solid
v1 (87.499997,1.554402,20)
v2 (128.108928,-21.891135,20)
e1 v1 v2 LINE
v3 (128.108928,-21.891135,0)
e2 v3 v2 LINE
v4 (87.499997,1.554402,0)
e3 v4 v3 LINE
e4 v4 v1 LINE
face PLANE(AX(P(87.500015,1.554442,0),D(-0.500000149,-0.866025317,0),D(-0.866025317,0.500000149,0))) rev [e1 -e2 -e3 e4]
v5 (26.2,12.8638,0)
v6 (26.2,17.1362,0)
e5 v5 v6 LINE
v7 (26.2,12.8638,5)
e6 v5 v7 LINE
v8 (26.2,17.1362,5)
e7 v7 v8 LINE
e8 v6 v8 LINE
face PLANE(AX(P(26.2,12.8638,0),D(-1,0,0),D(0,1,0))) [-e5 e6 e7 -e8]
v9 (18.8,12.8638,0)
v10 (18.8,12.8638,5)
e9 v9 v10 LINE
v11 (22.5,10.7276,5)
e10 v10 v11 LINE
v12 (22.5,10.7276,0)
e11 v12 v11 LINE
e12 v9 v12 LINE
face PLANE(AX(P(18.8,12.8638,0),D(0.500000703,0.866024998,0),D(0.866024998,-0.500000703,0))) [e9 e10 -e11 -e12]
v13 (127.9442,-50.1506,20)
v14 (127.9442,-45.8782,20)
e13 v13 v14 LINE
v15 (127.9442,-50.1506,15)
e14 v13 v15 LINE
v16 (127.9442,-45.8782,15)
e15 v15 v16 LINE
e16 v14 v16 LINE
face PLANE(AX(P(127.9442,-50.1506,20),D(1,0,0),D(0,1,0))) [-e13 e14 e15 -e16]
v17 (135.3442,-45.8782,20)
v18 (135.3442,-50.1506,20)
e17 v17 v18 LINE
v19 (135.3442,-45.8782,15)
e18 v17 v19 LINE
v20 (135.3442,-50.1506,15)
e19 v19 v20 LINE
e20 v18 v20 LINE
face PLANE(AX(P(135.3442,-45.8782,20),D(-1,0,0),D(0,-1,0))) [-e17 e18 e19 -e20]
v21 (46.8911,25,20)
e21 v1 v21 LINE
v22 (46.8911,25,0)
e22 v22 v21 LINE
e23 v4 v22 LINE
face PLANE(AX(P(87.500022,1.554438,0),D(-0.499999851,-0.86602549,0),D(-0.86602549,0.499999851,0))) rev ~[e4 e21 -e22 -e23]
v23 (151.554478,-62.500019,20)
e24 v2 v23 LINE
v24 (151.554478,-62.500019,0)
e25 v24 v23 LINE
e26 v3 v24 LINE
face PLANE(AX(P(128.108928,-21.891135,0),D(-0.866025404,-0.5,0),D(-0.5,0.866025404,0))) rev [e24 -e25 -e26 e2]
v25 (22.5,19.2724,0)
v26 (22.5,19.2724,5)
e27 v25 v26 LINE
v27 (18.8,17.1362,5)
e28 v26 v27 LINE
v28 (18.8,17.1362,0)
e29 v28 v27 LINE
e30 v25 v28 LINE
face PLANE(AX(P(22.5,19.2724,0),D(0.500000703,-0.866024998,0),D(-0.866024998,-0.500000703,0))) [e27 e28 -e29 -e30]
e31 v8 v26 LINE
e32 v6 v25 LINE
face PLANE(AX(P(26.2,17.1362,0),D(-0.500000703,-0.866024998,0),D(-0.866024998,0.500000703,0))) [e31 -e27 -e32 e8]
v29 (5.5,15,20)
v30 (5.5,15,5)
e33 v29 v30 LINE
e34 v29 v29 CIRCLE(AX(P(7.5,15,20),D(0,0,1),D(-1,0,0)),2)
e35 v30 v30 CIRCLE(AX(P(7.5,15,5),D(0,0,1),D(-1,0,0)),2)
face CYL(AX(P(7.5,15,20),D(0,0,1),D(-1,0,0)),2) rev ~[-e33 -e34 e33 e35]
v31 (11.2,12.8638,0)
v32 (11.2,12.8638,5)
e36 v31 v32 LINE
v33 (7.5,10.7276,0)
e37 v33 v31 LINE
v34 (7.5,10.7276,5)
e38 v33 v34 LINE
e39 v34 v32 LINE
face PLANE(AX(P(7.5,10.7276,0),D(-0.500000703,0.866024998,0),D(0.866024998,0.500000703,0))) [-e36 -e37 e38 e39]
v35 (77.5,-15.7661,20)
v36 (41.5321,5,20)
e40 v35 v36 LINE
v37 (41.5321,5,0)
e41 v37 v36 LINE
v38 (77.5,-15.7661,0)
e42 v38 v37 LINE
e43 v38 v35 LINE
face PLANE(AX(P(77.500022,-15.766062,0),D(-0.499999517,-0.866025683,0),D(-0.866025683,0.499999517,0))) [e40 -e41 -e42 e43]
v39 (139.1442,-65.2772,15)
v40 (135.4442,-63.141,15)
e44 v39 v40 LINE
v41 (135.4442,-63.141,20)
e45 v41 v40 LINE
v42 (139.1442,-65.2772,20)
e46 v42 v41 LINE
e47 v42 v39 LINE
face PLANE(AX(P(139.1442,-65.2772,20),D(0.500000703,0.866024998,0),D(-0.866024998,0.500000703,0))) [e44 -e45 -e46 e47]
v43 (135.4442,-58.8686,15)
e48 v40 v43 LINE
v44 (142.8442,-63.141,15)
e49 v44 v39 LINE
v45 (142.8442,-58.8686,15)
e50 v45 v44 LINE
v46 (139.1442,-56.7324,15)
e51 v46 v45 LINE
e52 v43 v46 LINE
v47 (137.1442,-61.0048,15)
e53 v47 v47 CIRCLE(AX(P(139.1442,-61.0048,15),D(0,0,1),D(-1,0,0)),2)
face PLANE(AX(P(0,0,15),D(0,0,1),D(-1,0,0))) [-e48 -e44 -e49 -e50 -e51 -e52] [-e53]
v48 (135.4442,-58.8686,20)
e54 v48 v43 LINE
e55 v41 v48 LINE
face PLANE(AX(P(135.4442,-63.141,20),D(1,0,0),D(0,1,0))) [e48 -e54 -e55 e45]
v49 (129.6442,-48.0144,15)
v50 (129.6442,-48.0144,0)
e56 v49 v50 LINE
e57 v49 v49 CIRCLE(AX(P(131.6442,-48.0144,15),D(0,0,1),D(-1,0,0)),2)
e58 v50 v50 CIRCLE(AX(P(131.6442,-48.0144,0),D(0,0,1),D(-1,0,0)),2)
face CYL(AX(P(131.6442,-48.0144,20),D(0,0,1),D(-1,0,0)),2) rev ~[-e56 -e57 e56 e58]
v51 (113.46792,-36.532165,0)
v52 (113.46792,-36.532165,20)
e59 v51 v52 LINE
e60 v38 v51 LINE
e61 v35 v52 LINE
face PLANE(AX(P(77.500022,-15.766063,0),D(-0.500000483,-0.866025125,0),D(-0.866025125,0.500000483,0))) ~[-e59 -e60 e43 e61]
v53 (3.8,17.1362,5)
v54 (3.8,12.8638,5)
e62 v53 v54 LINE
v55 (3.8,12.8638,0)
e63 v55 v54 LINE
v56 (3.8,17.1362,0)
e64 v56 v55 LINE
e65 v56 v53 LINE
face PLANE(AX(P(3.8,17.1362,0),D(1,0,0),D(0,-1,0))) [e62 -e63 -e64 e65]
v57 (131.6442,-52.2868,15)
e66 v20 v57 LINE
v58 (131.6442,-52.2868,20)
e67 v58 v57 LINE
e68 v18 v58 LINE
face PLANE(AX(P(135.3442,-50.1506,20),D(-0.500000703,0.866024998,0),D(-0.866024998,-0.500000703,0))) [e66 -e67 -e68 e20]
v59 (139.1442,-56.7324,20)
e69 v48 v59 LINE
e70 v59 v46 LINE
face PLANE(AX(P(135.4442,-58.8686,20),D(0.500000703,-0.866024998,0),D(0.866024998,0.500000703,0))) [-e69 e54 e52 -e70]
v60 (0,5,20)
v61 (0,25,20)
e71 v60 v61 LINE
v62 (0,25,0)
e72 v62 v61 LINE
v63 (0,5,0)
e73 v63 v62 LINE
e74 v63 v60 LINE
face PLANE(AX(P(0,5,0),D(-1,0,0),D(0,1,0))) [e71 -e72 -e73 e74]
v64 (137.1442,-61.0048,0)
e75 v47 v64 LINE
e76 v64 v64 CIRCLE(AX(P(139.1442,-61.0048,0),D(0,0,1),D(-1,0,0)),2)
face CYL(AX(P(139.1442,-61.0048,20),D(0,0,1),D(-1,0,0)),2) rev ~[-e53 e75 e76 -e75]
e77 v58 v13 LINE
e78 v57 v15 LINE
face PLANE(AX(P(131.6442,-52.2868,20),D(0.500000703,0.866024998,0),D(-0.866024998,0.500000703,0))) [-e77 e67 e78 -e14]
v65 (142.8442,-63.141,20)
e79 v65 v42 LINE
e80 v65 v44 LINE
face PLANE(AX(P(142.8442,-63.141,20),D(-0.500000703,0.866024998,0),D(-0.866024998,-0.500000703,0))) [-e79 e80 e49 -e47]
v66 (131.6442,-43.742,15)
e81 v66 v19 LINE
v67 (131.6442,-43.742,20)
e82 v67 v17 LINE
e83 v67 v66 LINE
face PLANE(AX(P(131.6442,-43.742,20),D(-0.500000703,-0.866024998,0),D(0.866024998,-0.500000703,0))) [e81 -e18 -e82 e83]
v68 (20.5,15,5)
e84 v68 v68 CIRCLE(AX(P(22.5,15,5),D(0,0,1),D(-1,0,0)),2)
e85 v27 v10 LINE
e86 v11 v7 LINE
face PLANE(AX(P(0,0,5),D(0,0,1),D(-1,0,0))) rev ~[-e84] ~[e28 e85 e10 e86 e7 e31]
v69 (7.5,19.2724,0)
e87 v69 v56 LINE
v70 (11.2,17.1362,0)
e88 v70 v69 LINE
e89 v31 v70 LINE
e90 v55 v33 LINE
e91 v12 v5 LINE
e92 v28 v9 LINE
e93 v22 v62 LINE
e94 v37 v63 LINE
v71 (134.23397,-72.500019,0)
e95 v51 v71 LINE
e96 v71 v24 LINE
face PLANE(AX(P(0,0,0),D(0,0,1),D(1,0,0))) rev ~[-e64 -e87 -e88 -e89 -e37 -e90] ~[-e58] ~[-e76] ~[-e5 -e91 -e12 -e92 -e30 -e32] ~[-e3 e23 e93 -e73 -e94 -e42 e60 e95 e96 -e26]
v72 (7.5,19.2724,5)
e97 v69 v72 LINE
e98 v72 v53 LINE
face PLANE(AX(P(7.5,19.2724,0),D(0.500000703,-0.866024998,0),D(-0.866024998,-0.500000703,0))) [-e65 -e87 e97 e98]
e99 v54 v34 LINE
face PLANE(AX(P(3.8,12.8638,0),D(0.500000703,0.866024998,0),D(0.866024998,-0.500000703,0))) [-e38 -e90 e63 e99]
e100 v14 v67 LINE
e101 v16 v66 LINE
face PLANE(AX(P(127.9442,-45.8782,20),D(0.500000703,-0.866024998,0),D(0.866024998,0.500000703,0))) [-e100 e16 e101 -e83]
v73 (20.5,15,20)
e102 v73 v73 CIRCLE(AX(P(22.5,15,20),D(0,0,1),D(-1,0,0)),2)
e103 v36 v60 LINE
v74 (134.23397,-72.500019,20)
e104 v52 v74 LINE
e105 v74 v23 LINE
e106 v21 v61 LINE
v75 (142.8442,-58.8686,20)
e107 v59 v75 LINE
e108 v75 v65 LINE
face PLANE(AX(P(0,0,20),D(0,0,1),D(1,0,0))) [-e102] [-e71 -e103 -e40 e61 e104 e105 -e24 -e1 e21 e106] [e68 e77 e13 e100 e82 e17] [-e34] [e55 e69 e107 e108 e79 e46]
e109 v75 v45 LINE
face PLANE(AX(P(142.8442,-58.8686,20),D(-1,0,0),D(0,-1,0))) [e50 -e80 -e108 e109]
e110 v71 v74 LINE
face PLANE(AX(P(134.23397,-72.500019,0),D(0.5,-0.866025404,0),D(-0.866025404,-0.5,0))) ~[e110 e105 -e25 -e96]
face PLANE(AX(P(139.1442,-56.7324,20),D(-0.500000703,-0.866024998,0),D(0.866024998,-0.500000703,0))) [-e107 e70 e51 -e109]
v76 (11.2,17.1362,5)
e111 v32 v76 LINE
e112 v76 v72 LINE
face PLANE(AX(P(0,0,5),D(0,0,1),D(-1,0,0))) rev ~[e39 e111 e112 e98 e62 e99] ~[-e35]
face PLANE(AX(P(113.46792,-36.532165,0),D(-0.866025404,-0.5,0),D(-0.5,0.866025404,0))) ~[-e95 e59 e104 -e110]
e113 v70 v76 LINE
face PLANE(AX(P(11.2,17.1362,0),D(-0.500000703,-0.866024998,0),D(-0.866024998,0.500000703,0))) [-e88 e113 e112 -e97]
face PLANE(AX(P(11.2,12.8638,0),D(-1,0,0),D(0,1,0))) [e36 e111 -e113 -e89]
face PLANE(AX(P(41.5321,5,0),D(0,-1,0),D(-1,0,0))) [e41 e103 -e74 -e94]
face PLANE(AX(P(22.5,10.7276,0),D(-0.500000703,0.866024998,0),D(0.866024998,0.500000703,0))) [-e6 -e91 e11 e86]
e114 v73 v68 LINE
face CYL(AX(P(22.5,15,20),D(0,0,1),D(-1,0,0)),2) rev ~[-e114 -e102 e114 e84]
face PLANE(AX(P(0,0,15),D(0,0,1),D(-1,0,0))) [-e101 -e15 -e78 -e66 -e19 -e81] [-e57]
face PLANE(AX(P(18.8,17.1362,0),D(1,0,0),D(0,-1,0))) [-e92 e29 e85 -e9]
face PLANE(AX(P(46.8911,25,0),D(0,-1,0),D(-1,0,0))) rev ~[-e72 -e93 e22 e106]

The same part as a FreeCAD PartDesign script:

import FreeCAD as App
import Part
import Sketcher
Q = App.Units.Quantity

doc = App.newDocument("Part")
params = doc.addObject("Spreadsheet::Sheet", "Params")
for row, (alias, value) in enumerate([
    ("sketch1_height", "20 mm"),
    ("sketch1_length", "20 mm"),
    ("pad1_length", "20 mm"),
    ("sketch2_diameter", "4 mm"),
    ("sketch3_diameter", "4 mm"),
    ("pocket2_length", "5 mm"),
    ("sketch4_diameter", "4 mm"),
    ("pocket3_length", "5 mm"),
], start=1):
    params.set(f"A{row}", alias)
    params.set(f"B{row}", "=" + value)
    params.setAlias(f"B{row}", alias)

body = doc.addObject("PartDesign::Body", "Body")

# Sketch on XY plane
sketch1 = body.newObject("Sketcher::SketchObject", "Sketch")
sketch1.AttachmentSupport = (doc.getObject("XY_Plane"), [""])
sketch1.MapMode = "FlatFace"
sketch1.addGeometry(Part.LineSegment(App.Vector(78, -16, 0), App.Vector(88, 2, 0)), False)
sketch1.addGeometry(Part.LineSegment(App.Vector(88, 2, 0), App.Vector(47, 25, 0)), False)
sketch1.addGeometry(Part.LineSegment(App.Vector(47, 25, 0), App.Vector(0, 25, 0)), False)
sketch1.addGeometry(Part.LineSegment(App.Vector(0, 25, 0), App.Vector(0, 5, 0)), False)
sketch1.addGeometry(Part.LineSegment(App.Vector(0, 5, 0), App.Vector(42, 5, 0)), False)
sketch1.addGeometry(Part.LineSegment(App.Vector(42, 5, 0), App.Vector(78, -16, 0)), False)
sketch1.addConstraint(Sketcher.Constraint("Coincident", 0, 2, 1, 1))
sketch1.addConstraint(Sketcher.Constraint("Coincident", 1, 2, 2, 1))
sketch1.addConstraint(Sketcher.Constraint("Coincident", 2, 2, 3, 1))
sketch1.addConstraint(Sketcher.Constraint("Coincident", 3, 2, 4, 1))
sketch1.addConstraint(Sketcher.Constraint("Coincident", 4, 2, 5, 1))
sketch1.addConstraint(Sketcher.Constraint("Coincident", 5, 2, 0, 1))
sketch1.addConstraint(Sketcher.Constraint("Horizontal", 2))
sketch1.addConstraint(Sketcher.Constraint("Vertical", 3))
sketch1.addConstraint(Sketcher.Constraint("Horizontal", 4))
sketch1.addConstraint(Sketcher.Constraint("PointOnObject", 2, 2, -2))
sketch1.addConstraint(Sketcher.Constraint("Perpendicular", 0, 1))
sketch1.addConstraint(Sketcher.Constraint("Parallel", 1, 5))
sketch1.addConstraint(Sketcher.Constraint("DistanceY", 3, 2, 3, 1, Q("20 mm")))
sketch1.addConstraint(Sketcher.Constraint("Angle", 0, Q("60 deg")))
sketch1.addConstraint(Sketcher.Constraint("Distance", 0, Q("20 mm")))
sketch1.addConstraint(Sketcher.Constraint("DistanceY", -1, 1, 1, 2, Q("25 mm")))
sketch1.addConstraint(Sketcher.Constraint("DistanceX", -1, 1, 0, 2, Q("87.5 mm")))
sketch1.addConstraint(Sketcher.Constraint("DistanceX", 2, 2, 2, 1, Q("46.891 mm")))
sketch1.setExpression("Constraints[12]", "Params.sketch1_height")
sketch1.setExpression("Constraints[14]", "Params.sketch1_length")
pad1 = body.newObject("PartDesign::Pad", "Pad")
pad1.Profile = sketch1
pad1.setExpression("Length", "Params.pad1_length")
doc.recompute()

datumplane = body.newObject("PartDesign::Plane", "DatumPlane")
datumplane.Placement = App.Placement(App.Vector(64.951922, -37.500009, 0), App.Rotation(App.Vector(0.5, 0.866025404, 0), App.Vector(0, 0, -1), App.Vector(-0.866025404, 0.5, 0), "ZXY"))
mirrored = body.newObject("PartDesign::Mirrored", "Mirrored")
mirrored.TransformMode = "Transform body"
mirrored.MirrorPlane = (datumplane, [""])
body.Tip = mirrored

# Sketch on XY plane
sketch2 = body.newObject("Sketcher::SketchObject", "Sketch001")
sketch2.AttachmentSupport = (doc.getObject("XY_Plane"), [""])
sketch2.MapMode = "FlatFace"
sketch2.AttachmentOffset = App.Placement(App.Vector(0, 0, 20), App.Rotation())
sketch2.addGeometry(Part.Circle(App.Vector(7.5, 15, 0), App.Vector(0, 0, 1), 2), False)
sketch2.addGeometry(Part.Circle(App.Vector(22.5, 15, 0), App.Vector(0, 0, 1), 2), False)
sketch2.addGeometry(Part.Circle(App.Vector(139.1, -61, 0), App.Vector(0, 0, 1), 2), False)
sketch2.addGeometry(Part.Circle(App.Vector(131.6, -48, 0), App.Vector(0, 0, 1), 2), False)
sketch2.addConstraint(Sketcher.Constraint("Equal", 0, 1))
sketch2.addConstraint(Sketcher.Constraint("Equal", 1, 2))
sketch2.addConstraint(Sketcher.Constraint("Equal", 2, 3))
sketch2.addConstraint(Sketcher.Constraint("Horizontal", 0, 3, 1, 3))
sketch2.addConstraint(Sketcher.Constraint("Diameter", 0, Q("4 mm")))
sketch2.addConstraint(Sketcher.Constraint("DistanceY", -1, 1, 0, 3, Q("15 mm")))
sketch2.addConstraint(Sketcher.Constraint("DistanceX", 0, 3, 1, 3, Q("15 mm")))
sketch2.addConstraint(Sketcher.Constraint("DistanceX", -1, 1, 0, 3, Q("7.5 mm")))
sketch2.addConstraint(Sketcher.Constraint("DistanceX", 3, 3, 2, 3, Q("7.5 mm")))
sketch2.addConstraint(Sketcher.Constraint("DistanceX", -1, 1, 2, 3, Q("139.1442 mm")))
sketch2.addConstraint(Sketcher.Constraint("DistanceY", 2, 3, -1, 1, Q("61.0048 mm")))
sketch2.addConstraint(Sketcher.Constraint("DistanceY", 3, 3, -1, 1, Q("48.0144 mm")))
sketch2.setExpression("Constraints[4]", "Params.sketch2_diameter")
pocket1 = body.newObject("PartDesign::Pocket", "Pocket")
pocket1.Profile = sketch2
pocket1.Type = "ThroughAll"

# Sketch on XY plane
sketch3 = body.newObject("Sketcher::SketchObject", "Sketch002")
sketch3.AttachmentSupport = (doc.getObject("XY_Plane"), [""])
sketch3.MapMode = "FlatFace"
sketch3.addGeometry(Part.LineSegment(App.Vector(7.5, 19.3, 0), App.Vector(3.8, 17.1, 0)), False)
sketch3.addGeometry(Part.LineSegment(App.Vector(3.8, 17.1, 0), App.Vector(3.8, 12.9, 0)), False)
sketch3.addGeometry(Part.LineSegment(App.Vector(3.8, 12.9, 0), App.Vector(7.5, 10.7, 0)), False)
sketch3.addGeometry(Part.LineSegment(App.Vector(7.5, 10.7, 0), App.Vector(11.2, 12.9, 0)), False)
sketch3.addGeometry(Part.LineSegment(App.Vector(11.2, 12.9, 0), App.Vector(11.2, 17.1, 0)), False)
sketch3.addGeometry(Part.LineSegment(App.Vector(11.2, 17.1, 0), App.Vector(7.5, 19.3, 0)), False)
sketch3.addGeometry(Part.Circle(App.Vector(7.5, 15, 0), App.Vector(0, 0, 1), 2), False)
sketch3.addGeometry(Part.LineSegment(App.Vector(22.5, 19.3, 0), App.Vector(18.8, 17.1, 0)), False)
sketch3.addGeometry(Part.LineSegment(App.Vector(18.8, 17.1, 0), App.Vector(18.8, 12.9, 0)), False)
sketch3.addGeometry(Part.LineSegment(App.Vector(18.8, 12.9, 0), App.Vector(22.5, 10.7, 0)), False)
sketch3.addGeometry(Part.LineSegment(App.Vector(22.5, 10.7, 0), App.Vector(26.2, 12.9, 0)), False)
sketch3.addGeometry(Part.LineSegment(App.Vector(26.2, 12.9, 0), App.Vector(26.2, 17.1, 0)), False)
sketch3.addGeometry(Part.LineSegment(App.Vector(26.2, 17.1, 0), App.Vector(22.5, 19.3, 0)), False)
sketch3.addGeometry(Part.Circle(App.Vector(22.5, 15, 0), App.Vector(0, 0, 1), 2), False)
sketch3.addConstraint(Sketcher.Constraint("Coincident", 0, 2, 1, 1))
sketch3.addConstraint(Sketcher.Constraint("Coincident", 1, 2, 2, 1))
sketch3.addConstraint(Sketcher.Constraint("Coincident", 2, 2, 3, 1))
sketch3.addConstraint(Sketcher.Constraint("Coincident", 3, 2, 4, 1))
sketch3.addConstraint(Sketcher.Constraint("Coincident", 4, 2, 5, 1))
sketch3.addConstraint(Sketcher.Constraint("Coincident", 5, 2, 0, 1))
sketch3.addConstraint(Sketcher.Constraint("Coincident", 7, 2, 8, 1))
sketch3.addConstraint(Sketcher.Constraint("Coincident", 8, 2, 9, 1))
sketch3.addConstraint(Sketcher.Constraint("Coincident", 9, 2, 10, 1))
sketch3.addConstraint(Sketcher.Constraint("Coincident", 10, 2, 11, 1))
sketch3.addConstraint(Sketcher.Constraint("Coincident", 11, 2, 12, 1))
sketch3.addConstraint(Sketcher.Constraint("Coincident", 12, 2, 7, 1))
sketch3.addConstraint(Sketcher.Constraint("Vertical", 1))
sketch3.addConstraint(Sketcher.Constraint("Vertical", 4))
sketch3.addConstraint(Sketcher.Constraint("Vertical", 8))
sketch3.addConstraint(Sketcher.Constraint("Vertical", 11))
sketch3.addConstraint(Sketcher.Constraint("Equal", 6, 13))
sketch3.addConstraint(Sketcher.Constraint("Parallel", 0, 3))
sketch3.addConstraint(Sketcher.Constraint("Parallel", 2, 5))
sketch3.addConstraint(Sketcher.Constraint("Parallel", 3, 7))
sketch3.addConstraint(Sketcher.Constraint("Parallel", 5, 9))
sketch3.addConstraint(Sketcher.Constraint("Parallel", 7, 10))
sketch3.addConstraint(Sketcher.Constraint("Parallel", 9, 12))
sketch3.addConstraint(Sketcher.Constraint("Horizontal", 6, 3, 13, 3))
sketch3.addConstraint(Sketcher.Constraint("Horizontal", 1, 2, 3, 2))
sketch3.addConstraint(Sketcher.Constraint("Horizontal", 0, 2, 4, 2))
sketch3.addConstraint(Sketcher.Constraint("Horizontal", 4, 2, 7, 2))
sketch3.addConstraint(Sketcher.Constraint("Horizontal", 3, 2, 8, 2))
sketch3.addConstraint(Sketcher.Constraint("Horizontal", 2, 2, 9, 2))
sketch3.addConstraint(Sketcher.Constraint("Horizontal", 8, 2, 10, 2))
sketch3.addConstraint(Sketcher.Constraint("Horizontal", 7, 2, 11, 2))
sketch3.addConstraint(Sketcher.Constraint("Vertical", 6, 3, 2, 2))
sketch3.addConstraint(Sketcher.Constraint("Vertical", 2, 2, 5, 2))
sketch3.addConstraint(Sketcher.Constraint("Vertical", 13, 3, 9, 2))
sketch3.addConstraint(Sketcher.Constraint("Diameter", 6, Q("4 mm")))
sketch3.addConstraint(Sketcher.Constraint("DistanceY", -1, 1, 6, 3, Q("15 mm")))
sketch3.addConstraint(Sketcher.Constraint("DistanceX", 6, 3, 13, 3, Q("15 mm")))
sketch3.addConstraint(Sketcher.Constraint("DistanceX", -1, 1, 6, 3, Q("7.5 mm")))
sketch3.addConstraint(Sketcher.Constraint("DistanceX", 1, 2, 3, 2, Q("7.4 mm")))
sketch3.addConstraint(Sketcher.Constraint("Angle", 0, Q("-150 deg")))
sketch3.addConstraint(Sketcher.Constraint("DistanceY", 1, 2, 1, 1, Q("4.2724 mm")))
sketch3.addConstraint(Sketcher.Constraint("DistanceY", -1, 1, 0, 2, Q("17.1362 mm")))
sketch3.setExpression("Constraints[34]", "Params.sketch3_diameter")
pocket2 = body.newObject("PartDesign::Pocket", "Pocket001")
pocket2.Profile = sketch3
pocket2.setExpression("Length", "Params.pocket2_length")
pocket2.Reversed = True

# Sketch on XY plane
sketch4 = body.newObject("Sketcher::SketchObject", "Sketch003")
sketch4.AttachmentSupport = (doc.getObject("XY_Plane"), [""])
sketch4.MapMode = "FlatFace"
sketch4.AttachmentOffset = App.Placement(App.Vector(0, 0, 20), App.Rotation())
sketch4.addGeometry(Part.LineSegment(App.Vector(142.8, -63.1, 0), App.Vector(142.8, -58.9, 0)), False)
sketch4.addGeometry(Part.LineSegment(App.Vector(142.8, -58.9, 0), App.Vector(139.1, -56.7, 0)), False)
sketch4.addGeometry(Part.LineSegment(App.Vector(139.1, -56.7, 0), App.Vector(135.4, -58.9, 0)), False)
sketch4.addGeometry(Part.LineSegment(App.Vector(135.4, -58.9, 0), App.Vector(135.4, -63.1, 0)), False)
sketch4.addGeometry(Part.LineSegment(App.Vector(135.4, -63.1, 0), App.Vector(139.1, -65.3, 0)), False)
sketch4.addGeometry(Part.LineSegment(App.Vector(139.1, -65.3, 0), App.Vector(142.8, -63.1, 0)), False)
sketch4.addGeometry(Part.Circle(App.Vector(139.1, -61, 0), App.Vector(0, 0, 1), 2), False)
sketch4.addGeometry(Part.LineSegment(App.Vector(127.9, -50.2, 0), App.Vector(131.6, -52.3, 0)), False)
sketch4.addGeometry(Part.LineSegment(App.Vector(131.6, -52.3, 0), App.Vector(135.3, -50.2, 0)), False)
sketch4.addGeometry(Part.LineSegment(App.Vector(135.3, -50.2, 0), App.Vector(135.3, -45.9, 0)), False)
sketch4.addGeometry(Part.LineSegment(App.Vector(135.3, -45.9, 0), App.Vector(131.6, -43.7, 0)), False)
sketch4.addGeometry(Part.LineSegment(App.Vector(131.6, -43.7, 0), App.Vector(127.9, -45.9, 0)), False)
sketch4.addGeometry(Part.LineSegment(App.Vector(127.9, -45.9, 0), App.Vector(127.9, -50.2, 0)), False)
sketch4.addGeometry(Part.Circle(App.Vector(131.6, -48, 0), App.Vector(0, 0, 1), 2), False)
sketch4.addConstraint(Sketcher.Constraint("Coincident", 0, 2, 1, 1))
sketch4.addConstraint(Sketcher.Constraint("Coincident", 1, 2, 2, 1))
sketch4.addConstraint(Sketcher.Constraint("Coincident", 2, 2, 3, 1))
sketch4.addConstraint(Sketcher.Constraint("Coincident", 3, 2, 4, 1))
sketch4.addConstraint(Sketcher.Constraint("Coincident", 4, 2, 5, 1))
sketch4.addConstraint(Sketcher.Constraint("Coincident", 5, 2, 0, 1))
sketch4.addConstraint(Sketcher.Constraint("Coincident", 7, 2, 8, 1))
sketch4.addConstraint(Sketcher.Constraint("Coincident", 8, 2, 9, 1))
sketch4.addConstraint(Sketcher.Constraint("Coincident", 9, 2, 10, 1))
sketch4.addConstraint(Sketcher.Constraint("Coincident", 10, 2, 11, 1))
sketch4.addConstraint(Sketcher.Constraint("Coincident", 11, 2, 12, 1))
sketch4.addConstraint(Sketcher.Constraint("Coincident", 12, 2, 7, 1))
sketch4.addConstraint(Sketcher.Constraint("Vertical", 0))
sketch4.addConstraint(Sketcher.Constraint("Vertical", 3))
sketch4.addConstraint(Sketcher.Constraint("Vertical", 9))
sketch4.addConstraint(Sketcher.Constraint("Vertical", 12))
sketch4.addConstraint(Sketcher.Constraint("Equal", 6, 13))
sketch4.addConstraint(Sketcher.Constraint("Parallel", 1, 4))
sketch4.addConstraint(Sketcher.Constraint("Parallel", 2, 5))
sketch4.addConstraint(Sketcher.Constraint("Parallel", 4, 7))
sketch4.addConstraint(Sketcher.Constraint("Parallel", 5, 8))
sketch4.addConstraint(Sketcher.Constraint("Parallel", 7, 10))
sketch4.addConstraint(Sketcher.Constraint("Parallel", 8, 11))
sketch4.addConstraint(Sketcher.Constraint("Horizontal", 0, 2, 2, 2))
sketch4.addConstraint(Sketcher.Constraint("Horizontal", 3, 2, 5, 2))
sketch4.addConstraint(Sketcher.Constraint("Horizontal", 9, 2, 11, 2))
sketch4.addConstraint(Sketcher.Constraint("Horizontal", 8, 2, 12, 2))
sketch4.addConstraint(Sketcher.Constraint("Vertical", 6, 3, 1, 2))
sketch4.addConstraint(Sketcher.Constraint("Vertical", 1, 2, 4, 2))
sketch4.addConstraint(Sketcher.Constraint("Vertical", 13, 3, 7, 2))
sketch4.addConstraint(Sketcher.Constraint("Equal", 3, 9))
sketch4.addConstraint(Sketcher.Constraint("Equal", 5, 7))
sketch4.addConstraint(Sketcher.Constraint("Diameter", 6, Q("4 mm")))
sketch4.addConstraint(Sketcher.Constraint("DistanceX", 13, 3, 6, 3, Q("7.5 mm")))
sketch4.addConstraint(Sketcher.Constraint("DistanceX", 2, 2, 0, 2, Q("7.4 mm")))
sketch4.addConstraint(Sketcher.Constraint("Angle", 1, Q("150 deg")))
sketch4.addConstraint(Sketcher.Constraint("DistanceY", 0, 1, 0, 2, Q("4.2724 mm")))
sketch4.addConstraint(Sketcher.Constraint("DistanceY", 3, 2, -1, 1, Q("63.141 mm")))
sketch4.addConstraint(Sketcher.Constraint("DistanceY", 10, 2, -1, 1, Q("43.742 mm")))
sketch4.addConstraint(Sketcher.Constraint("DistanceY", 1, 2, 13, 3, Q("8.718 mm")))
sketch4.addConstraint(Sketcher.Constraint("DistanceY", 6, 3, 7, 2, Q("8.718 mm")))
sketch4.addConstraint(Sketcher.Constraint("DistanceX", -1, 1, 6, 3, Q("139.1442 mm")))
sketch4.setExpression("Constraints[32]", "Params.sketch4_diameter")
pocket3 = body.newObject("PartDesign::Pocket", "Pocket002")
pocket3.Profile = sketch4
pocket3.setExpression("Length", "Params.pocket3_length")

doc.recompute()
